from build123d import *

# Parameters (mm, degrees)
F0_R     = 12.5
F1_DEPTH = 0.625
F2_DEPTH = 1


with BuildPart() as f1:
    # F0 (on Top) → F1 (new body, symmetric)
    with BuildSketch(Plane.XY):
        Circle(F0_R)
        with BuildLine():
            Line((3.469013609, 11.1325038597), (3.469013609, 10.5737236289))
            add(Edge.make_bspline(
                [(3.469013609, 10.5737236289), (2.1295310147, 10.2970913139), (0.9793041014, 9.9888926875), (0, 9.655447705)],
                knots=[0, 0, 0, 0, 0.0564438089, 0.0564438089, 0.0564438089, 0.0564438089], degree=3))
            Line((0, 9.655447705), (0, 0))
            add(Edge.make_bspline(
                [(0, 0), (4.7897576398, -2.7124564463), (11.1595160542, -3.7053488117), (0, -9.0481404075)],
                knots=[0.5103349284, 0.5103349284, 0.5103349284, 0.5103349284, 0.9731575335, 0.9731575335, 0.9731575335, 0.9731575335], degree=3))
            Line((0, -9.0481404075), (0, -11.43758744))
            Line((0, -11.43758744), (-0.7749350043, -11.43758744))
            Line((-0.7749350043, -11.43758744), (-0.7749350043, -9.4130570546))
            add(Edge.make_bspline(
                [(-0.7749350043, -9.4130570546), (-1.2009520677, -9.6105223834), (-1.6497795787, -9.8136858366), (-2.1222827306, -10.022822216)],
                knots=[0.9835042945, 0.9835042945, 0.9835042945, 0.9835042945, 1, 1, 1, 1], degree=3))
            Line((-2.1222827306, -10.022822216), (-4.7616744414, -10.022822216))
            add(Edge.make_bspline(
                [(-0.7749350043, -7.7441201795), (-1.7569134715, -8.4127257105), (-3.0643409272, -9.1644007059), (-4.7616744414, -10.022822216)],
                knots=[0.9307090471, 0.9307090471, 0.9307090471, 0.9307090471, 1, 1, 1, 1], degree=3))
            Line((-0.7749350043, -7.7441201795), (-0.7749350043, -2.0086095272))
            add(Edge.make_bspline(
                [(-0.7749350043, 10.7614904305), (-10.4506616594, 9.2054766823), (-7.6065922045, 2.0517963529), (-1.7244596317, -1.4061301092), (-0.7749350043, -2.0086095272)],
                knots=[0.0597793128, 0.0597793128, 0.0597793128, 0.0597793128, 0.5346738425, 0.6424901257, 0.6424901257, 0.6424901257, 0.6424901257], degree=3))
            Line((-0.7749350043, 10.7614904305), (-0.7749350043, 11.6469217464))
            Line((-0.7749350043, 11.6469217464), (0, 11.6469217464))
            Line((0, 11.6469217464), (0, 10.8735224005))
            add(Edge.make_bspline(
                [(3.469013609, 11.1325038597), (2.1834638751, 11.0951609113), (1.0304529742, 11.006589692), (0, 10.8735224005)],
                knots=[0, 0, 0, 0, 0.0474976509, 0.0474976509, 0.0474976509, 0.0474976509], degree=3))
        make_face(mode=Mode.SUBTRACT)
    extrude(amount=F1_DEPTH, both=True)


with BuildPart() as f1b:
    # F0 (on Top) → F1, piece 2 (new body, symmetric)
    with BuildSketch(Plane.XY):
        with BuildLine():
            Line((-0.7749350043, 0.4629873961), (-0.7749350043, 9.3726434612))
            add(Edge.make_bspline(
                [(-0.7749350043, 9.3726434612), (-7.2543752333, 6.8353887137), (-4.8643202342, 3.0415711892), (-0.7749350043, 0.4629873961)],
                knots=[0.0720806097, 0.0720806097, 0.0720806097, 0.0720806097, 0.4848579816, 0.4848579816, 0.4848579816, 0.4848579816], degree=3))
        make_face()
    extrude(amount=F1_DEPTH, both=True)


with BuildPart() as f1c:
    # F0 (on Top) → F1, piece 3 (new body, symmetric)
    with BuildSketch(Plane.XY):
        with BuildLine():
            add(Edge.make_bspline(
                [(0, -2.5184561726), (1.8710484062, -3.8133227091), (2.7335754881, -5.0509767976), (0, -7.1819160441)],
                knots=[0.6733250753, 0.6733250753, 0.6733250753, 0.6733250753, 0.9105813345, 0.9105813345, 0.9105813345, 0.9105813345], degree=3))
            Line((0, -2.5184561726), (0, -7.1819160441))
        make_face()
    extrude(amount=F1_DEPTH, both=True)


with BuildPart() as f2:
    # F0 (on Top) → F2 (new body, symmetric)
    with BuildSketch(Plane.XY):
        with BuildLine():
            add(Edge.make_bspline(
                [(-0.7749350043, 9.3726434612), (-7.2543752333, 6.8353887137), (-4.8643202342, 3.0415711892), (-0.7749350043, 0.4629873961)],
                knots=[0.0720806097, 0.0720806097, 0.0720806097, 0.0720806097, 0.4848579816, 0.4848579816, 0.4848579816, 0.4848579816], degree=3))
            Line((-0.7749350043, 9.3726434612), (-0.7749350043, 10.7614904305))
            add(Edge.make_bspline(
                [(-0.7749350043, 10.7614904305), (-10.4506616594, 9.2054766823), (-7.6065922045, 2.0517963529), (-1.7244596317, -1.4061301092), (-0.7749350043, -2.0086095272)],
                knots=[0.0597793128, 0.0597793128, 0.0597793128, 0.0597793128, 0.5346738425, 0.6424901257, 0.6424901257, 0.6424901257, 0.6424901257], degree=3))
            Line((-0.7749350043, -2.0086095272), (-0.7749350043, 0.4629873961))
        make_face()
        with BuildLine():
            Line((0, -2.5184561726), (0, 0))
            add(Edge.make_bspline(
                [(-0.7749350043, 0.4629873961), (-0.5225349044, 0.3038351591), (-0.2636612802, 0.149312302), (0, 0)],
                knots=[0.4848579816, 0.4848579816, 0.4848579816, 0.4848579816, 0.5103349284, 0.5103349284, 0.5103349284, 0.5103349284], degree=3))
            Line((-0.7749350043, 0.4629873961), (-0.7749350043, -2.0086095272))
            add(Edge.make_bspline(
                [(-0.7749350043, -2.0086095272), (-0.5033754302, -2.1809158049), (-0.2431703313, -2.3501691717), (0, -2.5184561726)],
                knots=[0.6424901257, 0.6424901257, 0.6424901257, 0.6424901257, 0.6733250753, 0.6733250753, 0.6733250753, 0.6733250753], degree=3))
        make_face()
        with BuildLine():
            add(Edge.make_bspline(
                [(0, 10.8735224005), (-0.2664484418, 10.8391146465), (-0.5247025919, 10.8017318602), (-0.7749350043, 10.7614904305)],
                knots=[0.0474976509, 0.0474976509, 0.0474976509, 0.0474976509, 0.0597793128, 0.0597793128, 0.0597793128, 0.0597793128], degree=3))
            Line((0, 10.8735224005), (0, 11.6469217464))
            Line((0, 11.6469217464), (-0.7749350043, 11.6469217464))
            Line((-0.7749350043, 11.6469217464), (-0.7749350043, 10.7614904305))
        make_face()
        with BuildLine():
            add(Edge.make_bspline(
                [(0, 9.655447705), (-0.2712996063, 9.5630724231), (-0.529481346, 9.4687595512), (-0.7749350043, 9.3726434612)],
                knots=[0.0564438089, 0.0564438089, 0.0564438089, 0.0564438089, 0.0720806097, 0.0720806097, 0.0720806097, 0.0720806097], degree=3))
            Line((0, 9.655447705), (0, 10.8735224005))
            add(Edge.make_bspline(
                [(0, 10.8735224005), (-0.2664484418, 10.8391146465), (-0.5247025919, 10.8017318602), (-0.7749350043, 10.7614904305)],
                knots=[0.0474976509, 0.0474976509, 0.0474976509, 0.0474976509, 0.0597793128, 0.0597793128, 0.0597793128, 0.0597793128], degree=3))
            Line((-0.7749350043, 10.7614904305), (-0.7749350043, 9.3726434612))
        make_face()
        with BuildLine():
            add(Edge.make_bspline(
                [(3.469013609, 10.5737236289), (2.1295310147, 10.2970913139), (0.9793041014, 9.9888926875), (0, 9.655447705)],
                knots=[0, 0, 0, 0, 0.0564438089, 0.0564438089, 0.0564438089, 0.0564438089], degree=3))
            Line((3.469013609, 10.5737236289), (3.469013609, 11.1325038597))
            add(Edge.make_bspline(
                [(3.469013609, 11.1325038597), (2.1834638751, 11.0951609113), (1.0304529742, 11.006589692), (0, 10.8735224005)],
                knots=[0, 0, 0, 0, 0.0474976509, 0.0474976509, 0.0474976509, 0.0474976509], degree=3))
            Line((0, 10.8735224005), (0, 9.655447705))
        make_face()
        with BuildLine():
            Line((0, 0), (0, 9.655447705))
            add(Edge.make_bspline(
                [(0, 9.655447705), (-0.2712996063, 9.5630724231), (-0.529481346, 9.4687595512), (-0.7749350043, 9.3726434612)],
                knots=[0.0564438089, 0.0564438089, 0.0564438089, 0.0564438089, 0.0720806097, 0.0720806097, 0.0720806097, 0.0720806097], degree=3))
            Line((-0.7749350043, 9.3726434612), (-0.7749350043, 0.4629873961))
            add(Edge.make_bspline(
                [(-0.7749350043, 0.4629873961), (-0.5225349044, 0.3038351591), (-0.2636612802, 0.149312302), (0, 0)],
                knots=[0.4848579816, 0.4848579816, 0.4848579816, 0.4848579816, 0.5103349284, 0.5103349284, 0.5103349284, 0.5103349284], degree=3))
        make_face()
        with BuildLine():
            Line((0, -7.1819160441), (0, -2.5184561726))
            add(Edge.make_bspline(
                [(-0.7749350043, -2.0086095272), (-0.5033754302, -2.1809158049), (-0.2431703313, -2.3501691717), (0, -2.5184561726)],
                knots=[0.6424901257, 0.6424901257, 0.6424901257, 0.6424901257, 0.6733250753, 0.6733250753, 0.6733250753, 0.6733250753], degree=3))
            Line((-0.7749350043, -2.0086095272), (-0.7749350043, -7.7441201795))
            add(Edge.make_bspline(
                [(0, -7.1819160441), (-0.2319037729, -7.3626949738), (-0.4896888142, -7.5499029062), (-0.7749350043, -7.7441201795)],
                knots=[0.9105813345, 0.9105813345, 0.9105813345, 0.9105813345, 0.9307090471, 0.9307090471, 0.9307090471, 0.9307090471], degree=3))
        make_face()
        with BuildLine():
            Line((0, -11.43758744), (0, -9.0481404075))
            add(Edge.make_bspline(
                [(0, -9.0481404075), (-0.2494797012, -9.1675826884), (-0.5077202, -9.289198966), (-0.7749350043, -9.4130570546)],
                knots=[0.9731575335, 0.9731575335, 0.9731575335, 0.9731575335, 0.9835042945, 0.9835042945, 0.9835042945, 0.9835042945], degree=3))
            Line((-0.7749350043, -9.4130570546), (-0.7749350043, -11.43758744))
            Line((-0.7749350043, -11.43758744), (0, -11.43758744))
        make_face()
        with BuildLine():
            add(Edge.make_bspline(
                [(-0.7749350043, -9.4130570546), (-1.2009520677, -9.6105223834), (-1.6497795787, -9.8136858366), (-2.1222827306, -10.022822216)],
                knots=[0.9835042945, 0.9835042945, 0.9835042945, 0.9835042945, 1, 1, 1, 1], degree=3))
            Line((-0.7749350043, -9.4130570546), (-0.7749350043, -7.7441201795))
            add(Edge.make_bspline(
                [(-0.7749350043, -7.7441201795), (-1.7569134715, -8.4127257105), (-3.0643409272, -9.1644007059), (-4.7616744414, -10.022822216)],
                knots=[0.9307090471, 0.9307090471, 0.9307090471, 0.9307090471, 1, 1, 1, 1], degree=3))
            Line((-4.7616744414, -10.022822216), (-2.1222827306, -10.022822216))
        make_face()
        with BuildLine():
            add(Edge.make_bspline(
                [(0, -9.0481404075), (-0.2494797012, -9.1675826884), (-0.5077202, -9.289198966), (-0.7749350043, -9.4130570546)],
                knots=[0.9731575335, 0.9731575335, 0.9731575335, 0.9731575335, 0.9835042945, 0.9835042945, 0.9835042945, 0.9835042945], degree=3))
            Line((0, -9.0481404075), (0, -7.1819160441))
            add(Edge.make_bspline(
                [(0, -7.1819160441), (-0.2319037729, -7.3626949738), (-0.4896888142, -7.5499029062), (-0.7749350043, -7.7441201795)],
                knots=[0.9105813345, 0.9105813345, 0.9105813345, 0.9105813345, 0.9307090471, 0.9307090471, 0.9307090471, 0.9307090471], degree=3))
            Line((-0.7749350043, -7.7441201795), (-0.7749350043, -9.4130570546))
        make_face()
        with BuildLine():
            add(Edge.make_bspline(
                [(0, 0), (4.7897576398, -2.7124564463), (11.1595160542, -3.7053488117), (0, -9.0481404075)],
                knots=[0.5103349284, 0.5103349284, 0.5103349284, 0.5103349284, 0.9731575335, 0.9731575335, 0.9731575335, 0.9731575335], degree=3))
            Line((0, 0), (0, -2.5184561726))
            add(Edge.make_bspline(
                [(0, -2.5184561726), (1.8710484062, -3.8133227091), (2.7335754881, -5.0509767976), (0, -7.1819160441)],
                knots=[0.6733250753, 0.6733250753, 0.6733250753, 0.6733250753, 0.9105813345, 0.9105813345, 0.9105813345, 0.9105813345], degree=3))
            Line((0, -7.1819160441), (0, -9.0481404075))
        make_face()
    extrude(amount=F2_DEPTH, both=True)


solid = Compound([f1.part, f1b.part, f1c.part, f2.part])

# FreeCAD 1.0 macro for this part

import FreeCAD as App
import Part
import Sketcher
from FreeCAD import Vector
Q = App.Units.Quantity

doc = App.newDocument("Part")
params = doc.addObject("Spreadsheet::Sheet", "Params")
for row, (alias, value) in enumerate([
    ("sketch1_diameter", "25 mm"),
    ("pad1_length", "1.25 mm"),
    ("pad2_length", "1.25 mm"),
    ("pad3_length", "1.25 mm"),
    ("pad4_length", "2 mm"),
], start=1):
    params.set(f"A{row}", alias)
    params.set(f"B{row}", "=" + value)
    params.setAlias(f"B{row}", alias)

body = doc.addObject("PartDesign::Body", "Body")

# Sketch on XY plane
sketch1 = body.newObject("Sketcher::SketchObject", "Sketch")
sketch1.AttachmentSupport = (doc.getObject("XY_Plane"), [""])
sketch1.MapMode = "FlatFace"
sketch1.addGeometry([
    Part.Circle(Vector(0, 0, 0), Vector(0, 0, 1), 12.5),  # 0
    Part.BSplineCurve([Vector(3.469014, 11.132504, 0), Vector(2.183464, 11.095161, 0), Vector(1.030453, 11.00659, 0), Vector(0, 10.873522, 0)], [4, 4], [0, 0.047497651], False, 3, [1, 1, 1, 1], False),  # 1
    Part.LineSegment(Vector(3.469014, 11.132504, 0), Vector(3.469014, 10.573724, 0)),  # 2
    Part.BSplineCurve([Vector(3.469014, 10.573724, 0), Vector(2.129531, 10.297091, 0), Vector(0.979304, 9.988893, 0), Vector(0, 9.655448, 0)], [4, 4], [0, 0.056443809], False, 3, [1, 1, 1, 1], False),  # 3
    Part.LineSegment(Vector(0, 9.655448, 0), Vector(0, 0, 0)),  # 4
    Part.BSplineCurve([Vector(0, 0, 0), Vector(4.789758, -2.712456, 0), Vector(11.159516, -3.705349, 0), Vector(0, -9.04814, 0)], [4, 4], [0.510334928, 0.973157534], False, 3, [1, 1, 1, 1], False),  # 5
    Part.LineSegment(Vector(0, -9.04814, 0), Vector(0, -11.437587, 0)),  # 6
    Part.LineSegment(Vector(0, -11.437587, 0), Vector(-0.774935, -11.437587, 0)),  # 7
    Part.LineSegment(Vector(-0.774935, -11.437587, 0), Vector(-0.774935, -9.413057, 0)),  # 8
    Part.BSplineCurve([Vector(-0.774935, -9.413057, 0), Vector(-1.200952, -9.610522, 0), Vector(-1.64978, -9.813686, 0), Vector(-2.122283, -10.022822, 0)], [4, 4], [0.983504294, 1], False, 3, [1, 1, 1, 1], False),  # 9
    Part.LineSegment(Vector(-2.122283, -10.022822, 0), Vector(-4.761674, -10.022822, 0)),  # 10
    Part.BSplineCurve([Vector(-0.774935, -7.74412, 0), Vector(-1.756913, -8.412726, 0), Vector(-3.064341, -9.164401, 0), Vector(-4.761674, -10.022822, 0)], [4, 4], [0.930709047, 1], False, 3, [1, 1, 1, 1], False),  # 11
    Part.LineSegment(Vector(-0.774935, -7.74412, 0), Vector(-0.774935, -2.00861, 0)),  # 12
    Part.BSplineCurve([Vector(-0.774935, 10.76149, 0), Vector(-10.450662, 9.205477, 0), Vector(-7.606592, 2.051796, 0), Vector(-1.72446, -1.40613, 0), Vector(-0.774935, -2.00861, 0)], [4, 1, 4], [0.059779313, 0.534673843, 0.642490126], False, 3, [1, 1, 1, 1, 1], False),  # 13
    Part.LineSegment(Vector(-0.774935, 10.76149, 0), Vector(-0.774935, 11.646922, 0)),  # 14
    Part.LineSegment(Vector(-0.774935, 11.646922, 0), Vector(0, 11.646922, 0)),  # 15
    Part.LineSegment(Vector(0, 11.646922, 0), Vector(0, 10.873522, 0)),  # 16
], False)
sketch1.addConstraint([
    Sketcher.Constraint("Block", 1),
    Sketcher.Constraint("Block", 3),
    Sketcher.Constraint("Block", 5),
    Sketcher.Constraint("Block", 9),
    Sketcher.Constraint("Block", 11),
    Sketcher.Constraint("Block", 13),
    Sketcher.Constraint("Coincident", 1, 1, 2, 1),
    Sketcher.Constraint("Coincident", 2, 2, 3, 1),
    Sketcher.Constraint("Coincident", 3, 2, 4, 1),
    Sketcher.Constraint("Coincident", 4, 2, 5, 1),
    Sketcher.Constraint("Coincident", 5, 2, 6, 1),
    Sketcher.Constraint("Coincident", 6, 2, 7, 1),
    Sketcher.Constraint("Coincident", 7, 2, 8, 1),
    Sketcher.Constraint("Coincident", 8, 2, 9, 1),
    Sketcher.Constraint("Coincident", 9, 2, 10, 1),
    Sketcher.Constraint("Coincident", 10, 2, 11, 2),
    Sketcher.Constraint("Coincident", 11, 1, 12, 1),
    Sketcher.Constraint("Coincident", 12, 2, 13, 2),
    Sketcher.Constraint("Coincident", 13, 1, 14, 1),
    Sketcher.Constraint("Coincident", 14, 2, 15, 1),
    Sketcher.Constraint("Coincident", 15, 2, 16, 1),
    Sketcher.Constraint("Coincident", 16, 2, 1, 2),
    Sketcher.Constraint("Vertical", 6),
    Sketcher.Constraint("Horizontal", 7),
    Sketcher.Constraint("Vertical", 8),
    Sketcher.Constraint("Vertical", 14),
    Sketcher.Constraint("Horizontal", 15),
    Sketcher.Constraint("Vertical", 16),
    Sketcher.Constraint("Coincident", 0, 3, -1, 1),
    Sketcher.Constraint("Diameter", 0, Q("25 mm")),
    Sketcher.Constraint("DistanceY", 16, 2, 16, 1, Q("0.773399 mm")),
    Sketcher.Constraint("DistanceY", 8, 1, 8, 2, Q("2.02453 mm")),
])
sketch1.setExpression("Constraints[29]", "Params.sketch1_diameter")
pad1 = body.newObject("PartDesign::Pad", "Pad")
pad1.Profile = sketch1
pad1.setExpression("Length", "Params.pad1_length")
pad1.Midplane = True
body2 = doc.addObject("PartDesign::Body", "Body001")

# Sketch on XY plane
sketch2 = body2.newObject("Sketcher::SketchObject", "Sketch001")
sketch2.AttachmentSupport = (doc.getObject("XY_Plane001"), [""])
sketch2.MapMode = "FlatFace"
sketch2.addGeometry([
    Part.LineSegment(Vector(-0.774935, 0.462987, 0), Vector(-0.774935, 9.372643, 0)),
    Part.BSplineCurve([Vector(-0.774935, 9.372643, 0), Vector(-7.254375, 6.835389, 0), Vector(-4.86432, 3.041571, 0), Vector(-0.774935, 0.462987, 0)], [4, 4], [0.07208061, 0.484857982], False, 3, [1, 1, 1, 1], False),
], False)
sketch2.addConstraint([
    Sketcher.Constraint("Block", 1),
    Sketcher.Constraint("Coincident", 0, 1, 1, 2),
    Sketcher.Constraint("Coincident", 1, 1, 0, 2),
])
pad2 = body2.newObject("PartDesign::Pad", "Pad001")
pad2.Profile = sketch2
pad2.setExpression("Length", "Params.pad2_length")
pad2.Midplane = True
body3 = doc.addObject("PartDesign::Body", "Body002")

# Sketch on XY plane
sketch3 = body3.newObject("Sketcher::SketchObject", "Sketch002")
sketch3.AttachmentSupport = (doc.getObject("XY_Plane002"), [""])
sketch3.MapMode = "FlatFace"
sketch3.addGeometry([
    Part.BSplineCurve([Vector(0, -2.518456, 0), Vector(1.871048, -3.813323, 0), Vector(2.733575, -5.050977, 0), Vector(0, -7.181916, 0)], [4, 4], [0.673325075, 0.910581335], False, 3, [1, 1, 1, 1], False),
    Part.LineSegment(Vector(0, -2.518456, 0), Vector(0, -7.181916, 0)),
], False)
sketch3.addConstraint([
    Sketcher.Constraint("Block", 0),
    Sketcher.Constraint("Coincident", 0, 1, 1, 1),
    Sketcher.Constraint("Coincident", 1, 2, 0, 2),
])
pad3 = body3.newObject("PartDesign::Pad", "Pad002")
pad3.Profile = sketch3
pad3.setExpression("Length", "Params.pad3_length")
pad3.Midplane = True
body4 = doc.addObject("PartDesign::Body", "Body003")

# Sketch on XY plane
sketch4 = body4.newObject("Sketcher::SketchObject", "Sketch003")
sketch4.AttachmentSupport = (doc.getObject("XY_Plane003"), [""])
sketch4.MapMode = "FlatFace"
sketch4.addGeometry([
    Part.LineSegment(Vector(0, -11.437587, 0), Vector(0, -9.04814, 0)),  # 0
    Part.BSplineCurve([Vector(0, 0, 0), Vector(4.789758, -2.712456, 0), Vector(11.159516, -3.705349, 0), Vector(0, -9.04814, 0)], [4, 4], [0.510334928, 0.973157534], False, 3, [1, 1, 1, 1], False),  # 1
    Part.LineSegment(Vector(0, 0, 0), Vector(0, 9.655448, 0)),  # 2
    Part.BSplineCurve([Vector(3.469014, 10.573724, 0), Vector(2.129531, 10.297091, 0), Vector(0.979304, 9.988893, 0), Vector(0, 9.655448, 0)], [4, 4], [0, 0.056443809], False, 3, [1, 1, 1, 1], False),  # 3
    Part.LineSegment(Vector(3.469014, 10.573724, 0), Vector(3.469014, 11.132504, 0)),  # 4
    Part.BSplineCurve([Vector(3.469014, 11.132504, 0), Vector(2.183464, 11.095161, 0), Vector(1.030453, 11.00659, 0), Vector(0, 10.873522, 0)], [4, 4], [0, 0.047497651], False, 3, [1, 1, 1, 1], False),  # 5
    Part.LineSegment(Vector(0, 10.873522, 0), Vector(0, 11.646922, 0)),  # 6
    Part.LineSegment(Vector(0, 11.646922, 0), Vector(-0.774935, 11.646922, 0)),  # 7
    Part.LineSegment(Vector(-0.774935, 11.646922, 0), Vector(-0.774935, 10.76149, 0)),  # 8
    Part.BSplineCurve([Vector(-0.774935, 10.76149, 0), Vector(-10.450662, 9.205477, 0), Vector(-7.606592, 2.051796, 0), Vector(-1.72446, -1.40613, 0), Vector(-0.774935, -2.00861, 0)], [4, 1, 4], [0.059779313, 0.534673843, 0.642490126], False, 3, [1, 1, 1, 1, 1], False),  # 9
    Part.LineSegment(Vector(-0.774935, -2.00861, 0), Vector(-0.774935, -7.74412, 0)),  # 10
    Part.BSplineCurve([Vector(-0.774935, -7.74412, 0), Vector(-1.756913, -8.412726, 0), Vector(-3.064341, -9.164401, 0), Vector(-4.761674, -10.022822, 0)], [4, 4], [0.930709047, 1], False, 3, [1, 1, 1, 1], False),  # 11
    Part.LineSegment(Vector(-4.761674, -10.022822, 0), Vector(-2.122283, -10.022822, 0)),  # 12
    Part.BSplineCurve([Vector(-0.774935, -9.413057, 0), Vector(-1.200952, -9.610522, 0), Vector(-1.64978, -9.813686, 0), Vector(-2.122283, -10.022822, 0)], [4, 4], [0.983504294, 1], False, 3, [1, 1, 1, 1], False),  # 13
    Part.LineSegment(Vector(-0.774935, -9.413057, 0), Vector(-0.774935, -11.437587, 0)),  # 14
    Part.LineSegment(Vector(-0.774935, -11.437587, 0), Vector(0, -11.437587, 0)),  # 15
    Part.BSplineCurve([Vector(-0.774935, 9.372643, 0), Vector(-7.254375, 6.835389, 0), Vector(-4.86432, 3.041571, 0), Vector(-0.774935, 0.462987, 0)], [4, 4], [0.07208061, 0.484857982], False, 3, [1, 1, 1, 1], False),  # 16
    Part.LineSegment(Vector(-0.774935, 9.372643, 0), Vector(-0.774935, 0.462987, 0)),  # 17
    Part.LineSegment(Vector(0, -7.181916, 0), Vector(0, -2.518456, 0)),  # 18
    Part.BSplineCurve([Vector(0, -2.518456, 0), Vector(1.871048, -3.813323, 0), Vector(2.733575, -5.050977, 0), Vector(0, -7.181916, 0)], [4, 4], [0.673325075, 0.910581335], False, 3, [1, 1, 1, 1], False),  # 19
], False)
sketch4.addConstraint([
    Sketcher.Constraint("Block", 1),
    Sketcher.Constraint("Block", 3),
    Sketcher.Constraint("Block", 5),
    Sketcher.Constraint("Block", 9),
    Sketcher.Constraint("Block", 11),
    Sketcher.Constraint("Block", 13),
    Sketcher.Constraint("Block", 16),
    Sketcher.Constraint("Block", 19),
    Sketcher.Constraint("Coincident", 0, 2, 1, 2),
    Sketcher.Constraint("Coincident", 1, 1, 2, 1),
    Sketcher.Constraint("Coincident", 2, 2, 3, 2),
    Sketcher.Constraint("Coincident", 3, 1, 4, 1),
    Sketcher.Constraint("Coincident", 4, 2, 5, 1),
    Sketcher.Constraint("Coincident", 5, 2, 6, 1),
    Sketcher.Constraint("Coincident", 6, 2, 7, 1),
    Sketcher.Constraint("Coincident", 7, 2, 8, 1),
    Sketcher.Constraint("Coincident", 8, 2, 9, 1),
    Sketcher.Constraint("Coincident", 9, 2, 10, 1),
    Sketcher.Constraint("Coincident", 10, 2, 11, 1),
    Sketcher.Constraint("Coincident", 11, 2, 12, 1),
    Sketcher.Constraint("Coincident", 12, 2, 13, 2),
    Sketcher.Constraint("Coincident", 13, 1, 14, 1),
    Sketcher.Constraint("Coincident", 14, 2, 15, 1),
    Sketcher.Constraint("Coincident", 15, 2, 0, 1),
    Sketcher.Constraint("Coincident", 16, 1, 17, 1),
    Sketcher.Constraint("Coincident", 17, 2, 16, 2),
    Sketcher.Constraint("Coincident", 18, 1, 19, 2),
    Sketcher.Constraint("Coincident", 19, 1, 18, 2),
    Sketcher.Constraint("Vertical", 0),
    Sketcher.Constraint("Vertical", 6),
    Sketcher.Constraint("Horizontal", 7),
    Sketcher.Constraint("Vertical", 8),
    Sketcher.Constraint("Vertical", 14),
    Sketcher.Constraint("Horizontal", 15),
    Sketcher.Constraint("DistanceY", 6, 1, 6, 2, Q("0.773399 mm")),
    Sketcher.Constraint("DistanceY", 14, 2, 14, 1, Q("2.02453 mm")),
])
pad4 = body4.newObject("PartDesign::Pad", "Pad003")
pad4.Profile = sketch4
pad4.setExpression("Length", "Params.pad4_length")
pad4.Midplane = True

doc.recompute()
